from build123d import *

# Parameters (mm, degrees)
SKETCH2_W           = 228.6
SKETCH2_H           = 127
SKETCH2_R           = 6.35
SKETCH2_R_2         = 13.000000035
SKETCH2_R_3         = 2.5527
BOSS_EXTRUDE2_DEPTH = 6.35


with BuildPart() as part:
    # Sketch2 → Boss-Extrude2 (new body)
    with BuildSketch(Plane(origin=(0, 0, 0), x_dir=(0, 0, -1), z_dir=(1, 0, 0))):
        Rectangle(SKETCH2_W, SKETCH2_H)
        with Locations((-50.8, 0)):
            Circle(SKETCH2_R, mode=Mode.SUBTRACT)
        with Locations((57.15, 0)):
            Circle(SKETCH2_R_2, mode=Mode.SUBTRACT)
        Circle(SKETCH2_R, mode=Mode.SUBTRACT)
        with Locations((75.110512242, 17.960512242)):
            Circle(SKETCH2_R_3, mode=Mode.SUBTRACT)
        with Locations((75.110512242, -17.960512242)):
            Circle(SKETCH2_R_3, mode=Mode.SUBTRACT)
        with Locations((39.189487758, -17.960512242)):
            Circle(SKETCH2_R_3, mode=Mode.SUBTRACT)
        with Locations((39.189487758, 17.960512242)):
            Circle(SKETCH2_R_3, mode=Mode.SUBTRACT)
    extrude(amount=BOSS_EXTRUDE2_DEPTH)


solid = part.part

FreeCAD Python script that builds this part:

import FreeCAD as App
import Part
import Sketcher

V = App.Vector
Q = App.Units.Quantity

doc = App.newDocument("Part")
body = doc.addObject("PartDesign::Body", "Body")

# Sketch on YZ plane
sketch1 = body.newObject("Sketcher::SketchObject", "Sketch")
sketch1.AttachmentSupport = (doc.getObject("YZ_Plane"), [""])
sketch1.MapMode = "FlatFace"
sketch1.addGeometry([
    Part.LineSegment(V(63.5, 114.3, 0), V(-63.5, 114.3, 0)),  # 0
    Part.LineSegment(V(-63.5, 114.3, 0), V(-63.5, -114.3, 0)),  # 1
    Part.LineSegment(V(-63.5, -114.3, 0), V(63.5, -114.3, 0)),  # 2
    Part.LineSegment(V(63.5, -114.3, 0), V(63.5, 114.3, 0)),  # 3
    Part.Circle(V(-18, -39.2, 0), V(0, 0, 1), 2.6),  # 4
    Part.Circle(V(-18, -75.1, 0), V(0, 0, 1), 2.6),  # 5
    Part.Circle(V(0, 50.8, 0), V(0, 0, 1), 6.3),  # 6
    Part.Circle(V(0, 0, 0), V(0, 0, 1), 6.3),  # 7
    Part.Circle(V(0, -57.1, 0), V(0, 0, 1), 13),  # 8
    Part.Circle(V(18, -39.2, 0), V(0, 0, 1), 2.6),  # 9
    Part.Circle(V(18, -75.1, 0), V(0, 0, 1), 2.6),  # 10
], False)
sketch1.addConstraint([
    Sketcher.Constraint("Coincident", 0, 2, 1, 1),
    Sketcher.Constraint("Coincident", 1, 2, 2, 1),
    Sketcher.Constraint("Coincident", 2, 2, 3, 1),
    Sketcher.Constraint("Coincident", 3, 2, 0, 1),
    Sketcher.Constraint("Horizontal", 0),
    Sketcher.Constraint("Vertical", 1),
    Sketcher.Constraint("Horizontal", 2),
    Sketcher.Constraint("Vertical", 3),
    Sketcher.Constraint("Coincident", 7, 3, -1, 1),
    Sketcher.Constraint("Equal", 4, 5),
    Sketcher.Constraint("Equal", 6, 7),
    Sketcher.Constraint("Equal", 5, 9),
    Sketcher.Constraint("Equal", 9, 10),
    Sketcher.Constraint("Symmetric", 0, 2, 2, 2, -1, 1),
    Sketcher.Constraint("Symmetric", 4, 3, 9, 3, -2),
    Sketcher.Constraint("Symmetric", 5, 3, 10, 3, -2),
    Sketcher.Constraint("PointOnObject", 6, 3, -2),
    Sketcher.Constraint("PointOnObject", 8, 3, -2),
    Sketcher.Constraint("Vertical", 4, 3, 5, 3),
    Sketcher.Constraint("Diameter", 6, Q("0.5 in")),
    Sketcher.Constraint("DistanceX", 0, 2, 0, 1, Q("5 in")),
    Sketcher.Constraint("DistanceY", 1, 2, 1, 1, Q("9 in")),
    Sketcher.Constraint("Diameter", 4, Q("0.201 in")),
    Sketcher.Constraint("DistanceY", -1, 1, 6, 3, Q("2 in")),
    Sketcher.Constraint("Diameter", 8, 26.0),
    Sketcher.Constraint("DistanceY", 8, 3, -1, 1, Q("2.25 in")),
    Sketcher.Constraint("DistanceX", 4, 3, -1, 1, 17.960512),
    Sketcher.Constraint("DistanceY", 4, 3, -1, 1, 39.189488),
    Sketcher.Constraint("DistanceY", 5, 3, -1, 1, 75.110512),
])
pad1 = body.newObject("PartDesign::Pad", "Pad")
pad1.Profile = sketch1
pad1.Length = Q("0.25 in")

doc.recompute()
